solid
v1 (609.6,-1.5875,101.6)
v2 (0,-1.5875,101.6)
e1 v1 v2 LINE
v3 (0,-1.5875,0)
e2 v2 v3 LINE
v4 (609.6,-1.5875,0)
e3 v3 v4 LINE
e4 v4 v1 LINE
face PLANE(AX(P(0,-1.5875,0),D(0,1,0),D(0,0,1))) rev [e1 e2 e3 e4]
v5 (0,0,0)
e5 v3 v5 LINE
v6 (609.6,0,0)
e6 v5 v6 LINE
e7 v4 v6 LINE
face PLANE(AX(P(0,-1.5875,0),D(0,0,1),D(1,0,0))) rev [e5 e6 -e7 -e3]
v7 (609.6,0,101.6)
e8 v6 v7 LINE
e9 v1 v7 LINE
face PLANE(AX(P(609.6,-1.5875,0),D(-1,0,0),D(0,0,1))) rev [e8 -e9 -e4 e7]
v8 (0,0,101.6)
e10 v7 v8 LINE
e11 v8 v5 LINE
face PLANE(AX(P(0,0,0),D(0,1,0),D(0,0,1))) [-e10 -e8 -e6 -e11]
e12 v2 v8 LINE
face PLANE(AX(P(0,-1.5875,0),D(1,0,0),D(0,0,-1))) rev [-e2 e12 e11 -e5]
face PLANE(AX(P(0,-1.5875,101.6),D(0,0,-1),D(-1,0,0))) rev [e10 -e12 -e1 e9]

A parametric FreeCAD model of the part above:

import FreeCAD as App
import Part
import Sketcher

V = App.Vector
Q = App.Units.Quantity


def add_polygon(sketch, points):
    """Adds a closed chain of lines whose ends are joined by coincident constraints."""
    first, n = sketch.GeometryCount, len(points)
    for a, b in zip(points, points[1:] + points[:1]):
        sketch.addGeometry(Part.LineSegment(App.Vector(*a, 0), App.Vector(*b, 0)), False)
    for i in range(n):
        sketch.addConstraint(Sketcher.Constraint("Coincident", first + i, 2, first + (i + 1) % n, 1))

doc = App.newDocument("Part")
body = doc.addObject("PartDesign::Body", "Body")

# Sketch on XZ plane
sketch1 = doc.addObject("Sketcher::SketchObject", "Sketch")
body.addObject(sketch1)
sketch1.AttachmentSupport = (doc.XZ_Plane, [""])
sketch1.MapMode = "FlatFace"
add_polygon(sketch1, [(0, 102), (0, 0), (610, 0), (610, 102)])  # lines 0-3
sketch1.addConstraint(Sketcher.Constraint("Vertical", 0))
sketch1.addConstraint(Sketcher.Constraint("Horizontal", 1))
sketch1.addConstraint(Sketcher.Constraint("Vertical", 2))
sketch1.addConstraint(Sketcher.Constraint("Horizontal", 3))
sketch1.addConstraint(Sketcher.Constraint("Coincident", 0, 2, -1, 1))
sketch1.addConstraint(Sketcher.Constraint("DistanceX", 1, 1, 1, 2, Q("24 in")))
sketch1.addConstraint(Sketcher.Constraint("DistanceY", 0, 2, 0, 1, Q("4 in")))
pad1 = doc.addObject("PartDesign::Pad", "Pad")
body.addObject(pad1)
pad1.Profile = sketch1
pad1.Length = Q("0.0625 in")

doc.recompute()
